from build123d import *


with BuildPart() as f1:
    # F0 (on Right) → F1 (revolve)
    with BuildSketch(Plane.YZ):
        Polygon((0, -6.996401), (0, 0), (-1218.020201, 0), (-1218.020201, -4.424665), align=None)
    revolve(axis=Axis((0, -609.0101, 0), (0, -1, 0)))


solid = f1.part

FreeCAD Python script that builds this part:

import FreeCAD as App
import Part
import Sketcher

V = App.Vector


def add_polygon(sketch, points):
    """Adds a closed chain of lines whose ends are joined by coincident constraints."""
    first, n = sketch.GeometryCount, len(points)
    for a, b in zip(points, points[1:] + points[:1]):
        sketch.addGeometry(Part.LineSegment(App.Vector(*a, 0), App.Vector(*b, 0)), False)
    for i in range(n):
        sketch.addConstraint(Sketcher.Constraint("Coincident", first + i, 2, first + (i + 1) % n, 1))

doc = App.newDocument("Part")
body = doc.addObject("PartDesign::Body", "Body")

sketch1 = body.newObject("Sketcher::SketchObject", "Sketch")
sketch1.AttachmentSupport = (doc.getObject("YZ_Plane"), [""])
sketch1.MapMode = "FlatFace"
add_polygon(sketch1, [(0, -7), (0, 0), (-1218, 0), (-1218, -4.4)])
sketch1.addConstraint([
    Sketcher.Constraint("Vertical", 0),
    Sketcher.Constraint("Horizontal", 1),
    Sketcher.Constraint("Vertical", 2),
    Sketcher.Constraint("Coincident", 0, 2, -1, 1),
    Sketcher.Constraint("DistanceX", 1, 2, 1, 1, 1218.020201),
    Sketcher.Constraint("DistanceY", 0, 1, 0, 2, 6.996401),
    Sketcher.Constraint("DistanceY", 2, 2, 2, 1, 4.424665),
])
revolution = body.newObject("PartDesign::Revolution", "Revolution")
revolution.Profile = sketch1
revolution.ReferenceAxis = (sketch1, ["H_Axis"])
revolution.Angle = 360

doc.recompute()
